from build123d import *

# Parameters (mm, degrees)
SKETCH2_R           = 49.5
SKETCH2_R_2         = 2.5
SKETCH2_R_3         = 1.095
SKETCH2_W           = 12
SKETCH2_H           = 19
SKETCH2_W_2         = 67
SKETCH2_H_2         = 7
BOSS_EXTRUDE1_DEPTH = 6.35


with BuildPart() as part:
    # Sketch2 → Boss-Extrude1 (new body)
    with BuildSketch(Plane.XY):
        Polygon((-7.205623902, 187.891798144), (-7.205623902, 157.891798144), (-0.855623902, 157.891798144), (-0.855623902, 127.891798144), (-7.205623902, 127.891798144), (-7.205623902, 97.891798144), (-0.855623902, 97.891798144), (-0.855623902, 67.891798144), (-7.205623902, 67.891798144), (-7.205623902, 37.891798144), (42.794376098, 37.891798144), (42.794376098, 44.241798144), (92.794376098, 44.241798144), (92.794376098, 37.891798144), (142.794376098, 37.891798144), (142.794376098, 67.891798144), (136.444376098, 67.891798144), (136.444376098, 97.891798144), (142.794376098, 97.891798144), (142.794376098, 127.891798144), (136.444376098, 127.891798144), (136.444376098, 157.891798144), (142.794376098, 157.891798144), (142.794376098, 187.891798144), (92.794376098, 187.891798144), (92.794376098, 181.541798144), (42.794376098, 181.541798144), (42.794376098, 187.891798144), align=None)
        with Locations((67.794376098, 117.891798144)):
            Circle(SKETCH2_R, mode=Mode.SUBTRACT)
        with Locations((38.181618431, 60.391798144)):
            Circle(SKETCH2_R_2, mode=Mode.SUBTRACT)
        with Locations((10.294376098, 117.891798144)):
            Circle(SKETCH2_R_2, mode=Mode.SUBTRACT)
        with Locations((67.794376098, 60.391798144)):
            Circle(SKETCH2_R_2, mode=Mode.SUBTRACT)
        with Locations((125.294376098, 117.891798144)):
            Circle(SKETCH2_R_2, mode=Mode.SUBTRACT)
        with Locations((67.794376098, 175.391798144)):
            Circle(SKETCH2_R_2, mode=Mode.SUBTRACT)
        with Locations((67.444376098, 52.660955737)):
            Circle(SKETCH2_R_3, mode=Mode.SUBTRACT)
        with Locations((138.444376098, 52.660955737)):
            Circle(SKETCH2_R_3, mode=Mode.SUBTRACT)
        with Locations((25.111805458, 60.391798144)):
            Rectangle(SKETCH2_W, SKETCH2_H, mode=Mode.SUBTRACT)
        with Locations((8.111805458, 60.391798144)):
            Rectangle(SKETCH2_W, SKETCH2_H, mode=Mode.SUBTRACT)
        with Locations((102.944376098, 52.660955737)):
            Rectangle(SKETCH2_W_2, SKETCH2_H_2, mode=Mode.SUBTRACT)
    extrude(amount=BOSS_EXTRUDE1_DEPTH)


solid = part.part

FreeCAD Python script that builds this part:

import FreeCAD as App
import Part
import Sketcher

V = App.Vector
Q = App.Units.Quantity

doc = App.newDocument("Part")
body = doc.addObject("PartDesign::Body", "Body")

sketch1 = doc.addObject("Sketcher::SketchObject", "Sketch")
body.addObject(sketch1)
sketch1.AttachmentSupport = (doc.XY_Plane, [""])
sketch1.MapMode = "FlatFace"
sketch1.addGeometry([
    Part.LineSegment(V(-7.205624, 187.891798, 0), V(-7.205624, 157.891798, 0)),
    Part.LineSegment(V(-7.205624, 157.891798, 0), V(-0.855624, 157.891798, 0)),
    Part.LineSegment(V(-0.855624, 157.891798, 0), V(-0.855624, 127.891798, 0)),
    Part.LineSegment(V(-0.855624, 127.891798, 0), V(-7.205624, 127.891798, 0)),
    Part.LineSegment(V(-7.205624, 127.891798, 0), V(-7.205624, 97.891798, 0)),
    Part.LineSegment(V(-7.205624, 97.891798, 0), V(-0.855624, 97.891798, 0)),
    Part.LineSegment(V(-0.855624, 97.891798, 0), V(-0.855624, 67.891798, 0)),
    Part.LineSegment(V(-0.855624, 67.891798, 0), V(-7.205624, 67.891798, 0)),
    Part.LineSegment(V(-7.205624, 67.891798, 0), V(-7.205624, 37.891798, 0)),
    Part.LineSegment(V(-7.205624, 37.891798, 0), V(42.794376, 37.891798, 0)),
    Part.LineSegment(V(42.794376, 37.891798, 0), V(42.794376, 44.241798, 0)),
    Part.LineSegment(V(42.794376, 44.241798, 0), V(92.794376, 44.241798, 0)),
    Part.LineSegment(V(92.794376, 44.241798, 0), V(92.794376, 37.891798, 0)),
    Part.LineSegment(V(92.794376, 37.891798, 0), V(142.794376, 37.891798, 0)),
    Part.LineSegment(V(142.794376, 37.891798, 0), V(142.794376, 67.891798, 0)),
    Part.LineSegment(V(142.794376, 67.891798, 0), V(136.444376, 67.891798, 0)),
    Part.LineSegment(V(136.444376, 67.891798, 0), V(136.444376, 97.891798, 0)),
    Part.LineSegment(V(136.444376, 97.891798, 0), V(142.794376, 97.891798, 0)),
    Part.LineSegment(V(142.794376, 97.891798, 0), V(142.794376, 127.891798, 0)),
    Part.LineSegment(V(142.794376, 127.891798, 0), V(136.444376, 127.891798, 0)),
    Part.LineSegment(V(136.444376, 127.891798, 0), V(136.444376, 157.891798, 0)),
    Part.LineSegment(V(136.444376, 157.891798, 0), V(142.794376, 157.891798, 0)),
    Part.LineSegment(V(142.794376, 157.891798, 0), V(142.794376, 187.891798, 0)),
    Part.LineSegment(V(142.794376, 187.891798, 0), V(92.794376, 187.891798, 0)),
    Part.LineSegment(V(92.794376, 187.891798, 0), V(92.794376, 181.541798, 0)),
    Part.LineSegment(V(92.794376, 181.541798, 0), V(42.794376, 181.541798, 0)),
    Part.LineSegment(V(42.794376, 181.541798, 0), V(42.794376, 187.891798, 0)),
    Part.LineSegment(V(42.794376, 187.891798, 0), V(-7.205624, 187.891798, 0)),
    Part.LineSegment(V(14.111805, 50.891798, 0), V(2.111805, 50.891798, 0)),
    Part.LineSegment(V(2.111805, 50.891798, 0), V(2.111805, 69.891798, 0)),
    Part.LineSegment(V(2.111805, 69.891798, 0), V(14.111805, 69.891798, 0)),
    Part.LineSegment(V(14.111805, 69.891798, 0), V(14.111805, 50.891798, 0)),
    Part.LineSegment(V(31.111805, 50.891798, 0), V(19.111805, 50.891798, 0)),
    Part.LineSegment(V(19.111805, 50.891798, 0), V(19.111805, 69.891798, 0)),
    Part.LineSegment(V(19.111805, 69.891798, 0), V(31.111805, 69.891798, 0)),
    Part.LineSegment(V(31.111805, 69.891798, 0), V(31.111805, 50.891798, 0)),
    Part.Circle(V(38.181618, 60.391798, 0), V(0, 0, 1), 2.5),
    Part.Circle(V(67.444376, 52.660956, 0), V(0, 0, 1), 1.095),
    Part.Circle(V(67.794376, 60.391798, 0), V(0, 0, 1), 2.5),
    Part.LineSegment(V(136.444376, 49.160956, 0), V(69.444376, 49.160956, 0)),
    Part.LineSegment(V(69.444376, 49.160956, 0), V(69.444376, 56.160956, 0)),
    Part.LineSegment(V(69.444376, 56.160956, 0), V(136.444376, 56.160956, 0)),
    Part.LineSegment(V(136.444376, 56.160956, 0), V(136.444376, 49.160956, 0)),
    Part.Circle(V(138.444376, 52.660956, 0), V(0, 0, 1), 1.095),
    Part.Circle(V(10.294376, 117.891798, 0), V(0, 0, 1), 2.5),
    Part.Circle(V(67.794376, 117.891798, 0), V(0, 0, 1), 49.5),
    Part.Circle(V(67.794376, 175.391798, 0), V(0, 0, 1), 2.5),
    Part.Circle(V(125.294376, 117.891798, 0), V(0, 0, 1), 2.5),
], False)
sketch1.addConstraint([
    Sketcher.Constraint("Coincident", 0, 2, 1, 1),
    Sketcher.Constraint("Coincident", 1, 2, 2, 1),
    Sketcher.Constraint("Coincident", 2, 2, 3, 1),
    Sketcher.Constraint("Coincident", 3, 2, 4, 1),
    Sketcher.Constraint("Coincident", 4, 2, 5, 1),
    Sketcher.Constraint("Coincident", 5, 2, 6, 1),
    Sketcher.Constraint("Coincident", 6, 2, 7, 1),
    Sketcher.Constraint("Coincident", 7, 2, 8, 1),
    Sketcher.Constraint("Coincident", 8, 2, 9, 1),
    Sketcher.Constraint("Coincident", 9, 2, 10, 1),
    Sketcher.Constraint("Coincident", 10, 2, 11, 1),
    Sketcher.Constraint("Coincident", 11, 2, 12, 1),
    Sketcher.Constraint("Coincident", 12, 2, 13, 1),
    Sketcher.Constraint("Coincident", 13, 2, 14, 1),
    Sketcher.Constraint("Coincident", 14, 2, 15, 1),
    Sketcher.Constraint("Coincident", 15, 2, 16, 1),
    Sketcher.Constraint("Coincident", 16, 2, 17, 1),
    Sketcher.Constraint("Coincident", 17, 2, 18, 1),
    Sketcher.Constraint("Coincident", 18, 2, 19, 1),
    Sketcher.Constraint("Coincident", 19, 2, 20, 1),
    Sketcher.Constraint("Coincident", 20, 2, 21, 1),
    Sketcher.Constraint("Coincident", 21, 2, 22, 1),
    Sketcher.Constraint("Coincident", 22, 2, 23, 1),
    Sketcher.Constraint("Coincident", 23, 2, 24, 1),
    Sketcher.Constraint("Coincident", 24, 2, 25, 1),
    Sketcher.Constraint("Coincident", 25, 2, 26, 1),
    Sketcher.Constraint("Coincident", 26, 2, 27, 1),
    Sketcher.Constraint("Coincident", 27, 2, 0, 1),
    Sketcher.Constraint("Coincident", 28, 2, 29, 1),
    Sketcher.Constraint("Coincident", 29, 2, 30, 1),
    Sketcher.Constraint("Coincident", 30, 2, 31, 1),
    Sketcher.Constraint("Coincident", 31, 2, 28, 1),
    Sketcher.Constraint("Coincident", 32, 2, 33, 1),
    Sketcher.Constraint("Coincident", 33, 2, 34, 1),
    Sketcher.Constraint("Coincident", 34, 2, 35, 1),
    Sketcher.Constraint("Coincident", 35, 2, 32, 1),
    Sketcher.Constraint("Coincident", 39, 2, 40, 1),
    Sketcher.Constraint("Coincident", 40, 2, 41, 1),
    Sketcher.Constraint("Coincident", 41, 2, 42, 1),
    Sketcher.Constraint("Coincident", 42, 2, 39, 1),
    Sketcher.Constraint("Vertical", 0),
    Sketcher.Constraint("Horizontal", 1),
    Sketcher.Constraint("Vertical", 2),
    Sketcher.Constraint("Horizontal", 3),
    Sketcher.Constraint("Vertical", 4),
    Sketcher.Constraint("Horizontal", 5),
    Sketcher.Constraint("Vertical", 6),
    Sketcher.Constraint("Horizontal", 7),
    Sketcher.Constraint("Vertical", 8),
    Sketcher.Constraint("Horizontal", 9),
    Sketcher.Constraint("Vertical", 10),
    Sketcher.Constraint("Horizontal", 11),
    Sketcher.Constraint("Vertical", 12),
    Sketcher.Constraint("Horizontal", 13),
    Sketcher.Constraint("Vertical", 14),
    Sketcher.Constraint("Horizontal", 15),
    Sketcher.Constraint("Vertical", 16),
    Sketcher.Constraint("Horizontal", 17),
    Sketcher.Constraint("Vertical", 18),
    Sketcher.Constraint("Horizontal", 19),
    Sketcher.Constraint("Vertical", 20),
    Sketcher.Constraint("Horizontal", 21),
    Sketcher.Constraint("Vertical", 22),
    Sketcher.Constraint("Horizontal", 23),
    Sketcher.Constraint("Vertical", 24),
    Sketcher.Constraint("Horizontal", 25),
    Sketcher.Constraint("Vertical", 26),
    Sketcher.Constraint("Horizontal", 27),
    Sketcher.Constraint("Horizontal", 28),
    Sketcher.Constraint("Vertical", 29),
    Sketcher.Constraint("Horizontal", 30),
    Sketcher.Constraint("Vertical", 31),
    Sketcher.Constraint("Horizontal", 32),
    Sketcher.Constraint("Vertical", 33),
    Sketcher.Constraint("Horizontal", 34),
    Sketcher.Constraint("Vertical", 35),
    Sketcher.Constraint("Horizontal", 39),
    Sketcher.Constraint("Vertical", 40),
    Sketcher.Constraint("Horizontal", 41),
    Sketcher.Constraint("Vertical", 42),
    Sketcher.Constraint("Equal", 36, 38),
    Sketcher.Constraint("Equal", 37, 43),
    Sketcher.Constraint("Equal", 38, 44),
    Sketcher.Constraint("Equal", 44, 46),
    Sketcher.Constraint("Equal", 46, 47),
    Sketcher.Constraint("Horizontal", 36, 3, 38, 3),
    Sketcher.Constraint("Horizontal", 37, 3, 43, 3),
    Sketcher.Constraint("Horizontal", 44, 3, 45, 3),
    Sketcher.Constraint("Horizontal", 45, 3, 47, 3),
    Sketcher.Constraint("Horizontal", 9, 2, 12, 2),
    Sketcher.Constraint("Horizontal", 7, 2, 14, 2),
    Sketcher.Constraint("Horizontal", 5, 2, 16, 2),
    Sketcher.Constraint("Horizontal", 3, 2, 18, 2),
    Sketcher.Constraint("Horizontal", 1, 2, 20, 2),
    Sketcher.Constraint("Horizontal", 23, 2, 26, 2),
    Sketcher.Constraint("Horizontal", 31, 2, 32, 2),
    Sketcher.Constraint("Horizontal", 30, 2, 33, 2),
    Sketcher.Constraint("Vertical", 38, 3, 45, 3),
    Sketcher.Constraint("Vertical", 45, 3, 46, 3),
    Sketcher.Constraint("Vertical", 0, 2, 3, 2),
    Sketcher.Constraint("Vertical", 2, 2, 5, 2),
    Sketcher.Constraint("Vertical", 4, 2, 7, 2),
    Sketcher.Constraint("Vertical", 14, 2, 17, 2),
    Sketcher.Constraint("Vertical", 16, 2, 19, 2),
    Sketcher.Constraint("Vertical", 18, 2, 21, 2),
    Sketcher.Constraint("Vertical", 12, 2, 23, 2),
    Sketcher.Constraint("Vertical", 10, 2, 25, 2),
    Sketcher.Constraint("Vertical", 20, 2, 41, 2),
    Sketcher.Constraint("Equal", 9, 11),
    Sketcher.Constraint("Equal", 11, 13),
    Sketcher.Constraint("Equal", 7, 15),
    Sketcher.Constraint("Equal", 30, 32),
    Sketcher.Constraint("Equal", 0, 2),
    Sketcher.Constraint("Equal", 2, 4),
    Sketcher.Constraint("Equal", 4, 6),
    Sketcher.Constraint("Equal", 6, 8),
    Sketcher.Constraint("Equal", 21, 10),
    Sketcher.Constraint("Equal", 12, 24),
    Sketcher.Constraint("Diameter", 36, Q("5 mm")),
    Sketcher.Constraint("Diameter", 45, Q("99 mm")),
    Sketcher.Constraint("Diameter", 37, Q("2.19 mm")),
    Sketcher.Constraint("DistanceX", 9, 1, 9, 2, Q("50 mm")),
    Sketcher.Constraint("DistanceX", 28, 2, 28, 1, Q("12 mm")),
    Sketcher.Constraint("DistanceX", 39, 2, 39, 1, Q("67 mm")),
    Sketcher.Constraint("DistanceY", 0, 2, 0, 1, Q("30 mm")),
    Sketcher.Constraint("DistanceY", 29, 1, 29, 2, Q("19 mm")),
    Sketcher.Constraint("DistanceY", 40, 1, 40, 2, Q("7 mm")),
    Sketcher.Constraint("DistanceX", 37, 3, 43, 3, Q("71 mm")),
    Sketcher.Constraint("DistanceY", 38, 3, 46, 3, Q("115 mm")),
    Sketcher.Constraint("DistanceY", 44, 3, 0, 2, Q("40 mm")),
    Sketcher.Constraint("DistanceX", 0, 2, 46, 3, Q("75 mm")),
    Sketcher.Constraint("DistanceX", 15, 2, 43, 3, Q("2 mm")),
    Sketcher.Constraint("DistanceY", 8, 2, 28, 2, Q("13 mm")),
    Sketcher.Constraint("DistanceX", 31, 2, 32, 2, Q("5 mm")),
    Sketcher.Constraint("DistanceX", 1, 1, 1, 2, Q("6.35 mm")),
    Sketcher.Constraint("DistanceY", 36, 3, 44, 3, Q("57.5 mm")),
    Sketcher.Constraint("DistanceX", 44, 3, 38, 3, Q("57.5 mm")),
    Sketcher.Constraint("DistanceX", 45, 3, 47, 3, Q("57.5 mm")),
    Sketcher.Constraint("DistanceY", 39, 2, 37, 3, Q("3.5 mm")),
    Sketcher.Constraint("DistanceY", -1, 1, 36, 3, Q("60.391798 mm")),
    Sketcher.Constraint("DistanceX", -1, 1, 36, 3, Q("38.181618 mm")),
    Sketcher.Constraint("DistanceX", 8, 2, 28, 2, Q("9.317429 mm")),
    Sketcher.Constraint("DistanceX", -1, 1, 37, 3, Q("67.444376 mm")),
    Sketcher.Constraint("DistanceY", -1, 1, 37, 3, Q("52.660956 mm")),
])
pad1 = doc.addObject("PartDesign::Pad", "Pad")
body.addObject(pad1)
pad1.Profile = sketch1
pad1.Length = 6.35

doc.recompute()
